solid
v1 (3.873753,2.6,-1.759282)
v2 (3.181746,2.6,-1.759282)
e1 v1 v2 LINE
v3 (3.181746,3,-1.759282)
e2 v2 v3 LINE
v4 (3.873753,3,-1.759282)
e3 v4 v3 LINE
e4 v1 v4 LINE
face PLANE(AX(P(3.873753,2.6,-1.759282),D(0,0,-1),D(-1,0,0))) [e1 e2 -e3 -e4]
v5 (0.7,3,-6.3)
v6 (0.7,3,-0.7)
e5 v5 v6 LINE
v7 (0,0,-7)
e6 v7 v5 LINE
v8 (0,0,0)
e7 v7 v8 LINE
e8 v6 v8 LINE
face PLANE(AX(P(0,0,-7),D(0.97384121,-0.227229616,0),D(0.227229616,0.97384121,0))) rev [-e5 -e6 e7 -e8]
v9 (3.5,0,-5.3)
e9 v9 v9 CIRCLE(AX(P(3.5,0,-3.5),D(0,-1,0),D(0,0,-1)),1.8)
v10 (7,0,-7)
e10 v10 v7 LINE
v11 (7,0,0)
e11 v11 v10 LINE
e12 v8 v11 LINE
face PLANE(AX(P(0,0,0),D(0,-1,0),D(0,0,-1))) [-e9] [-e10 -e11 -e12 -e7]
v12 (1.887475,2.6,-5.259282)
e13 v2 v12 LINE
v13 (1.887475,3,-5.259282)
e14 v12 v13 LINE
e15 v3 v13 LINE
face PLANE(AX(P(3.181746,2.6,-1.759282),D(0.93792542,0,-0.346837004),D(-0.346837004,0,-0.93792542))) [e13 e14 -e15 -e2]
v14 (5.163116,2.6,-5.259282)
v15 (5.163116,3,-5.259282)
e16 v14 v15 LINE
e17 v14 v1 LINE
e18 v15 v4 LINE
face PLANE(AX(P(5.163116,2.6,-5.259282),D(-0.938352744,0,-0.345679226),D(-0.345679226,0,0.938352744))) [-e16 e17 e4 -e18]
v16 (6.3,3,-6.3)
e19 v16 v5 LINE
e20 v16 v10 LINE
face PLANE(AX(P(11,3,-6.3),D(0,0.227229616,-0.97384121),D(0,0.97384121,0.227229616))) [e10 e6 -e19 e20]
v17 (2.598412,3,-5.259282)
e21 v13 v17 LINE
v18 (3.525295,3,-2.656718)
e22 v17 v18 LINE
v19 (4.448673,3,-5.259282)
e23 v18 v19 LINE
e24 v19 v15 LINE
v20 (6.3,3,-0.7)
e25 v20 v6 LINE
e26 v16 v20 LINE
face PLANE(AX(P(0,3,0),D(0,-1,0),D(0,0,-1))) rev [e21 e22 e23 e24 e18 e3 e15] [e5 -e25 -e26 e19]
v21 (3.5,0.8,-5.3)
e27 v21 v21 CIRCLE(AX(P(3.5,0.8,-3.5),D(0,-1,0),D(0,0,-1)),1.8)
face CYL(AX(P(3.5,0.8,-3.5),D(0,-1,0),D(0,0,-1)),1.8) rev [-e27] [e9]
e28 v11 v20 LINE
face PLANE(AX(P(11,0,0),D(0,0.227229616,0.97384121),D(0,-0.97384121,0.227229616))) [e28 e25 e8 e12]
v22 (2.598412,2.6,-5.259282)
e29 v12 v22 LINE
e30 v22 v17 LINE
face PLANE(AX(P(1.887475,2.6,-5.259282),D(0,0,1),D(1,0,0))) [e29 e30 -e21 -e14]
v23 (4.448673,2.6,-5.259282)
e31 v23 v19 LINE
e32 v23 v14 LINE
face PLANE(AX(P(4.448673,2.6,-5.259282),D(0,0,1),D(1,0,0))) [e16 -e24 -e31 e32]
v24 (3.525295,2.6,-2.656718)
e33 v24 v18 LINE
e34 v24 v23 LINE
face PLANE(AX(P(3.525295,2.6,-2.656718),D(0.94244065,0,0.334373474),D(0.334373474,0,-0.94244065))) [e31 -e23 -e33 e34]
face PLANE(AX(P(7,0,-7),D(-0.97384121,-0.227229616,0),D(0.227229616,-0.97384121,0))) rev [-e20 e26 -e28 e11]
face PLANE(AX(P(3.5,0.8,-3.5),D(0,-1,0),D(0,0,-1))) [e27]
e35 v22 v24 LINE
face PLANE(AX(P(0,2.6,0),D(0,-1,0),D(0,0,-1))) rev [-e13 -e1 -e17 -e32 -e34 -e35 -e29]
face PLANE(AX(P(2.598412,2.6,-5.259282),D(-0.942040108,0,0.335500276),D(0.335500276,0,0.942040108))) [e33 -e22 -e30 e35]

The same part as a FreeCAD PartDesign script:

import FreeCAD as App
import Part
import Sketcher

V = App.Vector
Q = App.Units.Quantity

doc = App.newDocument("Part")
body = doc.addObject("PartDesign::Body", "Body")

# Sketch on XZ plane
sketch1 = body.newObject("Sketcher::SketchObject", "Sketch")
sketch1.AttachmentSupport = (doc.getObject("XZ_Plane"), [""])
sketch1.MapMode = "FlatFace"
sketch1.addGeometry(Part.LineSegment(V(0, -7, 0), V(0, 0, 0)), False)
sketch1.addGeometry(Part.LineSegment(V(0, 0, 0), V(7, 0, 0)), False)
sketch1.addGeometry(Part.LineSegment(V(7, 0, 0), V(7, -7, 0)), False)
sketch1.addGeometry(Part.LineSegment(V(7, -7, 0), V(0, -7, 0)), False)
sketch1.addConstraint(Sketcher.Constraint("Coincident", 0, 2, 1, 1))
sketch1.addConstraint(Sketcher.Constraint("Coincident", 1, 2, 2, 1))
sketch1.addConstraint(Sketcher.Constraint("Coincident", 2, 2, 3, 1))
sketch1.addConstraint(Sketcher.Constraint("Coincident", 3, 2, 0, 1))
sketch1.addConstraint(Sketcher.Constraint("Vertical", 0))
sketch1.addConstraint(Sketcher.Constraint("Horizontal", 1))
sketch1.addConstraint(Sketcher.Constraint("Vertical", 2))
sketch1.addConstraint(Sketcher.Constraint("Horizontal", 3))
sketch1.addConstraint(Sketcher.Constraint("Coincident", 0, 2, -1, 1))
sketch1.addConstraint(Sketcher.Constraint("Equal", 3, 0))
sketch1.addConstraint(Sketcher.Constraint("DistanceX", 1, 1, 1, 2, Q("7 mm")))
pad1 = body.newObject("PartDesign::Pad", "Pad")
pad1.Profile = sketch1
pad1.Length = 3
pad1.Reversed = True

# Sketch on XY plane
sketch2 = body.newObject("Sketcher::SketchObject", "Sketch001")
sketch2.AttachmentSupport = (doc.getObject("XY_Plane"), [""])
sketch2.MapMode = "FlatFace"
sketch2.addGeometry(Part.LineSegment(V(0, 0, 0), V(0.7, 3, 0)), False)
sketch2.addGeometry(Part.LineSegment(V(0.7, 3, 0), V(0, 3, 0)), False)
sketch2.addGeometry(Part.LineSegment(V(0, 3, 0), V(0, 0, 0)), False)
sketch2.addGeometry(Part.LineSegment(V(6.3, 3, 0), V(7, 0, 0)), False)
sketch2.addGeometry(Part.LineSegment(V(7, 0, 0), V(7, 3, 0)), False)
sketch2.addGeometry(Part.LineSegment(V(7, 3, 0), V(6.3, 3, 0)), False)
sketch2.addConstraint(Sketcher.Constraint("Coincident", 0, 2, 1, 1))
sketch2.addConstraint(Sketcher.Constraint("Coincident", 1, 2, 2, 1))
sketch2.addConstraint(Sketcher.Constraint("Coincident", 2, 2, 0, 1))
sketch2.addConstraint(Sketcher.Constraint("Coincident", 3, 2, 4, 1))
sketch2.addConstraint(Sketcher.Constraint("Coincident", 4, 2, 5, 1))
sketch2.addConstraint(Sketcher.Constraint("Coincident", 5, 2, 3, 1))
sketch2.addConstraint(Sketcher.Constraint("Horizontal", 1))
sketch2.addConstraint(Sketcher.Constraint("Vertical", 2))
sketch2.addConstraint(Sketcher.Constraint("Vertical", 4))
sketch2.addConstraint(Sketcher.Constraint("Horizontal", 5))
sketch2.addConstraint(Sketcher.Constraint("Coincident", 2, 2, -1, 1))
sketch2.addConstraint(Sketcher.Constraint("PointOnObject", 3, 2, -1))
sketch2.addConstraint(Sketcher.Constraint("Horizontal", 1, 2, 4, 2))
sketch2.addConstraint(Sketcher.Constraint("Equal", 1, 5))
sketch2.addConstraint(Sketcher.Constraint("DistanceY", 2, 2, 2, 1, Q("3 mm")))
sketch2.addConstraint(Sketcher.Constraint("DistanceX", 1, 2, 1, 1, Q("0.7 mm")))
sketch2.addConstraint(Sketcher.Constraint("DistanceX", -1, 1, 3, 2, Q("7 mm")))
pocket1 = body.newObject("PartDesign::Pocket", "Pocket")
pocket1.Profile = sketch2
pocket1.Length = 7

# Sketch on YZ plane
sketch3 = body.newObject("Sketcher::SketchObject", "Sketch002")
sketch3.AttachmentSupport = (doc.getObject("YZ_Plane"), [""])
sketch3.MapMode = "FlatFace"
sketch3.addGeometry(Part.LineSegment(V(0, 0, 0), V(3, -0.7, 0)), False)
sketch3.addGeometry(Part.LineSegment(V(3, -0.7, 0), V(3, 0, 0)), False)
sketch3.addGeometry(Part.LineSegment(V(3, 0, 0), V(0, 0, 0)), False)
sketch3.addGeometry(Part.LineSegment(V(3, -7, 0), V(3, -6.3, 0)), False)
sketch3.addGeometry(Part.LineSegment(V(3, -6.3, 0), V(0, -7, 0)), False)
sketch3.addGeometry(Part.LineSegment(V(0, -7, 0), V(3, -7, 0)), False)
sketch3.addConstraint(Sketcher.Constraint("Coincident", 0, 2, 1, 1))
sketch3.addConstraint(Sketcher.Constraint("Coincident", 1, 2, 2, 1))
sketch3.addConstraint(Sketcher.Constraint("Coincident", 2, 2, 0, 1))
sketch3.addConstraint(Sketcher.Constraint("Coincident", 3, 2, 4, 1))
sketch3.addConstraint(Sketcher.Constraint("Coincident", 4, 2, 5, 1))
sketch3.addConstraint(Sketcher.Constraint("Coincident", 5, 2, 3, 1))
sketch3.addConstraint(Sketcher.Constraint("Vertical", 1))
sketch3.addConstraint(Sketcher.Constraint("Horizontal", 2))
sketch3.addConstraint(Sketcher.Constraint("Vertical", 3))
sketch3.addConstraint(Sketcher.Constraint("Horizontal", 5))
sketch3.addConstraint(Sketcher.Constraint("Coincident", 2, 2, -1, 1))
sketch3.addConstraint(Sketcher.Constraint("PointOnObject", 4, 2, -2))
sketch3.addConstraint(Sketcher.Constraint("Vertical", 1, 2, 3, 2))
sketch3.addConstraint(Sketcher.Constraint("Equal", 1, 3))
sketch3.addConstraint(Sketcher.Constraint("DistanceX", 2, 2, 2, 1, Q("3 mm")))
sketch3.addConstraint(Sketcher.Constraint("DistanceY", 1, 1, 1, 2, Q("0.7 mm")))
sketch3.addConstraint(Sketcher.Constraint("DistanceY", 4, 2, -1, 1, Q("7 mm")))
pocket2 = body.newObject("PartDesign::Pocket", "Pocket001")
pocket2.Profile = sketch3
pocket2.Length = 11
pocket2.Reversed = True

# Sketch on XZ plane
sketch4 = body.newObject("Sketcher::SketchObject", "Sketch003")
sketch4.AttachmentSupport = (doc.getObject("XZ_Plane"), [""])
sketch4.MapMode = "FlatFace"
sketch4.addGeometry(Part.Circle(V(3.5, -3.5, 0), V(0, 0, 1), 1.8), False)
sketch4.addConstraint(Sketcher.Constraint("Diameter", 0, Q("3.6 mm")))
sketch4.addConstraint(Sketcher.Constraint("DistanceX", -1, 1, 0, 3, Q("3.5 mm")))
sketch4.addConstraint(Sketcher.Constraint("DistanceY", 0, 3, -1, 1, Q("3.5 mm")))
pocket3 = body.newObject("PartDesign::Pocket", "Pocket002")
pocket3.Profile = sketch4
pocket3.Length = 0.8

# Sketch on XZ plane
sketch5 = body.newObject("Sketcher::SketchObject", "Sketch004")
sketch5.AttachmentSupport = (doc.getObject("XZ_Plane"), [""])
sketch5.MapMode = "FlatFace"
sketch5.AttachmentOffset = App.Placement(V(0, 0, -3), App.Rotation())
sketch5.addGeometry(Part.LineSegment(V(1.9, -5.3, 0), V(3.2, -1.8, 0)), False)
sketch5.addGeometry(Part.LineSegment(V(3.2, -1.8, 0), V(3.9, -1.8, 0)), False)
sketch5.addGeometry(Part.LineSegment(V(3.9, -1.8, 0), V(5.2, -5.3, 0)), False)
sketch5.addGeometry(Part.LineSegment(V(5.2, -5.3, 0), V(4.4, -5.3, 0)), False)
sketch5.addGeometry(Part.LineSegment(V(4.4, -5.3, 0), V(3.5, -2.7, 0)), False)
sketch5.addGeometry(Part.LineSegment(V(3.5, -2.7, 0), V(2.6, -5.3, 0)), False)
sketch5.addGeometry(Part.LineSegment(V(2.6, -5.3, 0), V(1.9, -5.3, 0)), False)
sketch5.addConstraint(Sketcher.Constraint("Coincident", 0, 2, 1, 1))
sketch5.addConstraint(Sketcher.Constraint("Coincident", 1, 2, 2, 1))
sketch5.addConstraint(Sketcher.Constraint("Coincident", 2, 2, 3, 1))
sketch5.addConstraint(Sketcher.Constraint("Coincident", 3, 2, 4, 1))
sketch5.addConstraint(Sketcher.Constraint("Coincident", 4, 2, 5, 1))
sketch5.addConstraint(Sketcher.Constraint("Coincident", 5, 2, 6, 1))
sketch5.addConstraint(Sketcher.Constraint("Coincident", 6, 2, 0, 1))
sketch5.addConstraint(Sketcher.Constraint("Horizontal", 1))
sketch5.addConstraint(Sketcher.Constraint("Horizontal", 3))
sketch5.addConstraint(Sketcher.Constraint("Horizontal", 6))
sketch5.addConstraint(Sketcher.Constraint("Horizontal", 3, 2, 5, 2))
sketch5.addConstraint(Sketcher.Constraint("DistanceY", 2, 2, 1, 2, Q("3.5 mm")))
sketch5.addConstraint(Sketcher.Constraint("Distance", 0, Q("3.73164 mm")))
sketch5.addConstraint(Sketcher.Constraint("Distance", 2, Q("3.729941 mm")))
sketch5.addConstraint(Sketcher.Constraint("Distance", 5, Q("2.762689 mm")))
sketch5.addConstraint(Sketcher.Constraint("DistanceX", 1, 1, 1, 2, Q("0.692007 mm")))
sketch5.addConstraint(Sketcher.Constraint("DistanceX", 3, 2, 3, 1, Q("0.714443 mm")))
sketch5.addConstraint(Sketcher.Constraint("DistanceX", 6, 2, 6, 1, Q("0.710937 mm")))
sketch5.addConstraint(Sketcher.Constraint("DistanceY", 4, 2, -1, 1, Q("2.656718 mm")))
sketch5.addConstraint(Sketcher.Constraint("DistanceX", 0, 2, 4, 2, Q("0.34355 mm")))
sketch5.addConstraint(Sketcher.Constraint("DistanceX", -1, 1, 0, 2, Q("3.181746 mm")))
pocket4 = body.newObject("PartDesign::Pocket", "Pocket003")
pocket4.Profile = sketch5
pocket4.Length = 0.4
pocket4.Reversed = True

doc.recompute()
